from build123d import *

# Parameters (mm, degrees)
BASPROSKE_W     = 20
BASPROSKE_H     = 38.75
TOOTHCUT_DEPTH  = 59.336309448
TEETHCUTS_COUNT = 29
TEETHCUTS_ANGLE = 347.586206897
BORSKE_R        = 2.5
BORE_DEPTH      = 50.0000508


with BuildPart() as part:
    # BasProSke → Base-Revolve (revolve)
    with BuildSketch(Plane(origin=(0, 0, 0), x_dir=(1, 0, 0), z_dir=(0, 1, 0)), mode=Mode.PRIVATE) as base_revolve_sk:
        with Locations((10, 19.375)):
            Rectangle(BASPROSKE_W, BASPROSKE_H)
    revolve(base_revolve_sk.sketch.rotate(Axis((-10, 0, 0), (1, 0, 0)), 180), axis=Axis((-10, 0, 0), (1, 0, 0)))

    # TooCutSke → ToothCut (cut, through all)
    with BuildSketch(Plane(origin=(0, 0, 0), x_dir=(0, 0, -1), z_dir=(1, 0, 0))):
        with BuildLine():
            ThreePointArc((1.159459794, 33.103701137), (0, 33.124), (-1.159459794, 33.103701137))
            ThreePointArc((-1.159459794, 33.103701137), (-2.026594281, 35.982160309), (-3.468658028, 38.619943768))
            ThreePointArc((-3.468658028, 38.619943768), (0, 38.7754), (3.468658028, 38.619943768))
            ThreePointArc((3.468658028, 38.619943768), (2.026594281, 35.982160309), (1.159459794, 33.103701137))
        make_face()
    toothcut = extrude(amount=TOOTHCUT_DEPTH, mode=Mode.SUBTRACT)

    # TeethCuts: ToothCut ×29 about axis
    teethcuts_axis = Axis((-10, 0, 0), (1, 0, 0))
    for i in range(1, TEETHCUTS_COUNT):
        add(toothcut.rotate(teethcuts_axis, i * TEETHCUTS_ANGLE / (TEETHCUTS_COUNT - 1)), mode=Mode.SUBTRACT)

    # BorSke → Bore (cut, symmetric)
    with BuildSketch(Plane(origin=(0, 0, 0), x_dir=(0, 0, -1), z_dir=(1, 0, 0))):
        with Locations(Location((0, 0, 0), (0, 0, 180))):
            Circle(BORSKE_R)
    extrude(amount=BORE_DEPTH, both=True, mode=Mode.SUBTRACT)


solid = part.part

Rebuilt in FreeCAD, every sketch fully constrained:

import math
import FreeCAD as App
import Part
import Sketcher
from FreeCAD import Vector

doc = App.newDocument("Part")
body = doc.addObject("PartDesign::Body", "Body")

sketch1 = body.newObject("Sketcher::SketchObject", "Sketch")
sketch1.AttachmentSupport = (doc.getObject("XZ_Plane"), [""])
sketch1.MapMode = "FlatFace"
sketch1.addGeometry([
    Part.LineSegment(Vector(0, -38.75, 0), Vector(0, 0, 0)),
    Part.LineSegment(Vector(0, 0, 0), Vector(20, 0, 0)),
    Part.LineSegment(Vector(20, 0, 0), Vector(20, -38.75, 0)),
    Part.LineSegment(Vector(20, -38.75, 0), Vector(0, -38.75, 0)),
], False)
sketch1.addConstraint([
    Sketcher.Constraint("Coincident", 0, 2, 1, 1),
    Sketcher.Constraint("Coincident", 1, 2, 2, 1),
    Sketcher.Constraint("Coincident", 2, 2, 3, 1),
    Sketcher.Constraint("Coincident", 3, 2, 0, 1),
    Sketcher.Constraint("Vertical", 0),
    Sketcher.Constraint("Horizontal", 1),
    Sketcher.Constraint("Vertical", 2),
    Sketcher.Constraint("Horizontal", 3),
    Sketcher.Constraint("Coincident", 0, 2, -1, 1),
    Sketcher.Constraint("DistanceX", 1, 1, 1, 2, 20.0),
    Sketcher.Constraint("DistanceY", 0, 1, 0, 2, 38.75),
])
revolution = body.newObject("PartDesign::Revolution", "Revolution")
revolution.Profile = sketch1
revolution.ReferenceAxis = (sketch1, ["H_Axis"])
revolution.Angle = 360

sketch2 = body.newObject("Sketcher::SketchObject", "Sketch001")
sketch2.AttachmentSupport = (doc.getObject("YZ_Plane"), [""])
sketch2.MapMode = "FlatFace"
sketch2.addGeometry([
    Part.ArcOfCircle(Part.Circle(Vector(0, 0, 0), Vector(0, 0, 1), 33.124), math.radians(-2.005969), math.radians(2.005969)),
    Part.ArcOfCircle(Part.Circle(Vector(30.383007, -15.401925, 0), Vector(0, 0, 1), 14.5), math.radians(55.384623), math.radians(79.185254)),
    Part.ArcOfCircle(Part.Circle(Vector(0, 0, 0), Vector(0, 0, 1), 38.7754), math.radians(-5.132261), math.radians(5.132261)),
    Part.ArcOfCircle(Part.Circle(Vector(30.383007, 15.401925, 0), Vector(0, 0, 1), 14.5), math.radians(-79.185254), math.radians(-55.384623)),
], False)
sketch2.addConstraint([
    Sketcher.Constraint("Coincident", 0, 1, 1, 2),
    Sketcher.Constraint("Coincident", 1, 1, 2, 1),
    Sketcher.Constraint("Coincident", 2, 2, 3, 2),
    Sketcher.Constraint("Coincident", 3, 1, 0, 2),
    Sketcher.Constraint("Coincident", 0, 3, -1, 1),
    Sketcher.Constraint("Coincident", 2, 3, -1, 1),
    Sketcher.Constraint("Equal", 1, 3),
    Sketcher.Constraint("Symmetric", 1, 3, 3, 3, -1),
    Sketcher.Constraint("Radius", 1, 14.5),
    Sketcher.Constraint("Radius", 0, 33.124),
    Sketcher.Constraint("Radius", 2, 38.7754),
    Sketcher.Constraint("DistanceX", -1, 1, 0, 1, 33.103701),
    Sketcher.Constraint("DistanceY", 1, 1, 0, 1, 2.309198),
])
pocket1 = body.newObject("PartDesign::Pocket", "Pocket")
pocket1.Profile = sketch2
pocket1.Type = "ThroughAll"
pocket1.Reversed = True
doc.recompute()

polarpattern = body.newObject("PartDesign::PolarPattern", "PolarPattern")
polarpattern.Originals = [pocket1]
polarpattern.Axis = (doc.getObject("X_Axis"), [""])
polarpattern.Angle = 360
polarpattern.Occurrences = 29
body.Tip = polarpattern

sketch3 = body.newObject("Sketcher::SketchObject", "Sketch002")
sketch3.AttachmentSupport = (doc.getObject("YZ_Plane"), [""])
sketch3.MapMode = "FlatFace"
sketch3.addGeometry(Part.Circle(Vector(0, 0, 0), Vector(0, 0, 1), 2.5), False)
sketch3.addConstraint([
    Sketcher.Constraint("Coincident", 0, 3, -1, 1),
    Sketcher.Constraint("Diameter", 0, 5.0),
])
pocket2 = body.newObject("PartDesign::Pocket", "Pocket001")
pocket2.Profile = sketch3
pocket2.Length = 100.000102
pocket2.Midplane = True

doc.recompute()
